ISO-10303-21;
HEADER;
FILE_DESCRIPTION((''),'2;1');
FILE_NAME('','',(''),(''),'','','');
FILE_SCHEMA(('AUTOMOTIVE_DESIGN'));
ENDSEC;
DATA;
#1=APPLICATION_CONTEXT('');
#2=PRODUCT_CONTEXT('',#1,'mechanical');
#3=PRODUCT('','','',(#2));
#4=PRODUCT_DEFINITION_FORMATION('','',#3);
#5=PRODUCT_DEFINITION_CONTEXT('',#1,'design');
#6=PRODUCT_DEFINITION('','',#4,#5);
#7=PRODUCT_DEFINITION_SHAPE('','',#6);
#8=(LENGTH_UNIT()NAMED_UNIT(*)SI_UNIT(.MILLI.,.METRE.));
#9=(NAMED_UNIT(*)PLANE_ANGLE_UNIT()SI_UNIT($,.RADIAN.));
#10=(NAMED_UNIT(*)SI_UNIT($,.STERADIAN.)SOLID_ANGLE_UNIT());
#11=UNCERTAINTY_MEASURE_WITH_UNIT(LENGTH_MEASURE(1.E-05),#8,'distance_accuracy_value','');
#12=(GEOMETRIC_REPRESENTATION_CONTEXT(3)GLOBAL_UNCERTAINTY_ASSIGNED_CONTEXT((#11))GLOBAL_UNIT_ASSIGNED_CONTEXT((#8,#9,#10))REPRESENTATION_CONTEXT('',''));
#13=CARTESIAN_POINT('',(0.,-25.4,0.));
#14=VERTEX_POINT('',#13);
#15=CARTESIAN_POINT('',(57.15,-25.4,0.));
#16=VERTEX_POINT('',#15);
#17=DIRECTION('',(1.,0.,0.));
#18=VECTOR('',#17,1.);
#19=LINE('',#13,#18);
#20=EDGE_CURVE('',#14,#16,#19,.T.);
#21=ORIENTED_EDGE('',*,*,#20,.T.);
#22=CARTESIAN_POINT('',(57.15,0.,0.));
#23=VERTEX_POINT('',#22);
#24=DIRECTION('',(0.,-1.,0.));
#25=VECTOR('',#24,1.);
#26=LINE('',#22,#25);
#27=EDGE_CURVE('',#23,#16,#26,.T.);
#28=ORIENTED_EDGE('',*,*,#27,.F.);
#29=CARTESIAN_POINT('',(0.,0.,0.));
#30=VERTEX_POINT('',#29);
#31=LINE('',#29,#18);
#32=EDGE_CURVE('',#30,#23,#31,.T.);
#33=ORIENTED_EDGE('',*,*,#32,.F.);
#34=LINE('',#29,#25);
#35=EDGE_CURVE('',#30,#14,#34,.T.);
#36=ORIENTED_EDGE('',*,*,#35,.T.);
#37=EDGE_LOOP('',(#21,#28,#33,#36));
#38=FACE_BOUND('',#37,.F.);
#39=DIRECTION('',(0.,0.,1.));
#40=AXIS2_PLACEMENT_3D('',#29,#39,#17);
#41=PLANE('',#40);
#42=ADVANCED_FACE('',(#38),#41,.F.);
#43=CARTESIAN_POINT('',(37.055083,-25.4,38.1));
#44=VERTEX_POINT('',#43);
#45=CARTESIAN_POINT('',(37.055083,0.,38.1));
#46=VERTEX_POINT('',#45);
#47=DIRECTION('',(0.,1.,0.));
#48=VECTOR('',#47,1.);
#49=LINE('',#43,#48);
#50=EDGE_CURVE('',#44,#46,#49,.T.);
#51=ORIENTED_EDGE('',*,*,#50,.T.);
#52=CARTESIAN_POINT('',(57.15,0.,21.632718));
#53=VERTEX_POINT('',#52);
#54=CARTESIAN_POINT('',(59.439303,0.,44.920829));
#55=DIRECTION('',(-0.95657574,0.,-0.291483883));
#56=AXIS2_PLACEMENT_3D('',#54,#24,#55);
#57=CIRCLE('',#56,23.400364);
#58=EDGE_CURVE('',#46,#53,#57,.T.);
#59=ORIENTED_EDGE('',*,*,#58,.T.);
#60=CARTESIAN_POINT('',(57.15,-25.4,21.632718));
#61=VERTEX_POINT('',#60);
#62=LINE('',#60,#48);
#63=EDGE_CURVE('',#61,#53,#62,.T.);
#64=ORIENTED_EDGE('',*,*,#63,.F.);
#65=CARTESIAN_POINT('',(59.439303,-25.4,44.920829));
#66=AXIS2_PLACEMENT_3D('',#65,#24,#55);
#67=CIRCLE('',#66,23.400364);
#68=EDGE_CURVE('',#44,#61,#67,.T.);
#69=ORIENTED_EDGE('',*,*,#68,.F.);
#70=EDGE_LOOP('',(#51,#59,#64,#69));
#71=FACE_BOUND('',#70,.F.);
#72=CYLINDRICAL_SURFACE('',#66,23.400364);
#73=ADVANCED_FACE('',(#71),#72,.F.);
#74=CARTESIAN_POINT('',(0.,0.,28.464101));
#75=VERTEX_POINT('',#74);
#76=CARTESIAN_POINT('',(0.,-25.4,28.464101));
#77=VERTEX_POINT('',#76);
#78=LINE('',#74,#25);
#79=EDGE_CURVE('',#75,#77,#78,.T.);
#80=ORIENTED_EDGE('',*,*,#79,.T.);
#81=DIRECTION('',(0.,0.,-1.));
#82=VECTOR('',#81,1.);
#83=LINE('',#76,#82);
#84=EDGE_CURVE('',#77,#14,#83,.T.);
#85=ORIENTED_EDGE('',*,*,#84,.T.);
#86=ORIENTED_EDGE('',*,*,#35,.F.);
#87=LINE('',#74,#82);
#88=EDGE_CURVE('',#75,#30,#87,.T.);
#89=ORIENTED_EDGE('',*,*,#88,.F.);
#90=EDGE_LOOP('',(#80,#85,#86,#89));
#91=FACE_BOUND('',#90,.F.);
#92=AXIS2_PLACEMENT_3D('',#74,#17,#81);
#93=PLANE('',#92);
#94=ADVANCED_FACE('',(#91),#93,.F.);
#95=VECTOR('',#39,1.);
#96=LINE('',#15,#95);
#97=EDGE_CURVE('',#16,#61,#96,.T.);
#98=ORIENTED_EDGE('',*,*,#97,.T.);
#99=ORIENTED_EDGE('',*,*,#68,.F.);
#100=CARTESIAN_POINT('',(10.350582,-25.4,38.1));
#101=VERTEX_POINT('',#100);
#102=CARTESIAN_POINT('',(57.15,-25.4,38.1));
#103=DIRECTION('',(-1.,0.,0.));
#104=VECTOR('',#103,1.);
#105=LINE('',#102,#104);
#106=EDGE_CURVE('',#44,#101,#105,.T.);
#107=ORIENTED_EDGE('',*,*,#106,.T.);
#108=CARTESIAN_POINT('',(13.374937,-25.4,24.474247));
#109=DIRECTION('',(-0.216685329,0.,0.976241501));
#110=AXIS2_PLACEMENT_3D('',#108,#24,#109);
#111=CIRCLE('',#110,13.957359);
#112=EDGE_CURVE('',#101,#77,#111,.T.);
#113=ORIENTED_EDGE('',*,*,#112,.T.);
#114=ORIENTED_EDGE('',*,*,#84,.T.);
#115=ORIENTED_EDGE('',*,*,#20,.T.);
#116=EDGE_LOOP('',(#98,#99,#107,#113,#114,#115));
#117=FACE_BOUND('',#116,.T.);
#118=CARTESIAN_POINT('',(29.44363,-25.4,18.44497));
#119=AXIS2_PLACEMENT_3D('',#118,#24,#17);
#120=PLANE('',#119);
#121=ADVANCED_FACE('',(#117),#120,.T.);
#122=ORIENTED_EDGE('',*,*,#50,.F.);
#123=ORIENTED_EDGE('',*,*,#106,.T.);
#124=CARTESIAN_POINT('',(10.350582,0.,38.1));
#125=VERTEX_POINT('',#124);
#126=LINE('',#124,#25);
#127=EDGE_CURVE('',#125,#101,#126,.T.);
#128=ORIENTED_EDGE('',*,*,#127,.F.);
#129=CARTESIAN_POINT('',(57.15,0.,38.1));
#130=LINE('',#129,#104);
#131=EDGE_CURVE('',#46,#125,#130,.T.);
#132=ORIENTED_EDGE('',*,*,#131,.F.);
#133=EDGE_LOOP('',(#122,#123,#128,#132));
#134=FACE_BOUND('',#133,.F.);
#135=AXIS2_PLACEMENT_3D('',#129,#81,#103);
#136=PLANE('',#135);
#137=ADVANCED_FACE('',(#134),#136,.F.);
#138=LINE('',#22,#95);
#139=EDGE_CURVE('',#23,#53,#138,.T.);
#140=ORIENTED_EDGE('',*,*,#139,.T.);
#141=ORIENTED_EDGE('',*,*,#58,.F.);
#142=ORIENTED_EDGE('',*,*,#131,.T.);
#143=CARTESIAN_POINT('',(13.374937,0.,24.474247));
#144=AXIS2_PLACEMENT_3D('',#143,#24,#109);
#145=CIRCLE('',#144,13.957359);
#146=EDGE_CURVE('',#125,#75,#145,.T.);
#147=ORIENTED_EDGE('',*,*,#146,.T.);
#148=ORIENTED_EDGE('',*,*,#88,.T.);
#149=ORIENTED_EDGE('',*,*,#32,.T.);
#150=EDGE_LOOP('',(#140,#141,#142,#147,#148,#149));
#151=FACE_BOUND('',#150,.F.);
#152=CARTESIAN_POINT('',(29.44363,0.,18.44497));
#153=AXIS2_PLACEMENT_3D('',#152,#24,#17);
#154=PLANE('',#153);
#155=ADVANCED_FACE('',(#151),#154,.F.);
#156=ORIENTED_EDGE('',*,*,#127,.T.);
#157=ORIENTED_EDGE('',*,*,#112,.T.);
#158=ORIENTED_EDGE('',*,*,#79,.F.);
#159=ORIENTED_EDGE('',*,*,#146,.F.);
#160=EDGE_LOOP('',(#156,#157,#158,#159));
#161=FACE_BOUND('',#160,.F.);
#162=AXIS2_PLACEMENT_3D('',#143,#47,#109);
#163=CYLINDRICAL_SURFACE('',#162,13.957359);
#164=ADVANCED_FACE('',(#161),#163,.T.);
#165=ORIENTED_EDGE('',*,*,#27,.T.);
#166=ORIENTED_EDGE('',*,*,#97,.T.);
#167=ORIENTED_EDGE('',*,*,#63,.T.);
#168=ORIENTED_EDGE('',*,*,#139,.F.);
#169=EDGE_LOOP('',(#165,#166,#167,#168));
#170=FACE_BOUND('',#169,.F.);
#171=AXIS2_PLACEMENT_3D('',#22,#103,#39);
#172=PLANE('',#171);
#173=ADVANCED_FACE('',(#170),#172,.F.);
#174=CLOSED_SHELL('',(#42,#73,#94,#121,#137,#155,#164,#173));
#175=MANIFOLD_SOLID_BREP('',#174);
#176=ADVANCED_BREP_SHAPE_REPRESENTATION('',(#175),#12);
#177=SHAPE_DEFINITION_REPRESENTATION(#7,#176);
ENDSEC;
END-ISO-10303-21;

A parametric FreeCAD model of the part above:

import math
import FreeCAD as App
import Part
import Sketcher
Q = App.Units.Quantity

doc = App.newDocument("Part")
body = doc.addObject("PartDesign::Body", "Body")

sketch1 = body.newObject("Sketcher::SketchObject", "Sketch")
sketch1.AttachmentSupport = (doc.getObject("XZ_Plane"), [""])
sketch1.MapMode = "FlatFace"
sketch1.addGeometry([
    Part.ArcOfCircle(Part.Circle(App.Vector(13, 24, 0), App.Vector(0, 0, 1), 14), math.radians(103), math.radians(163)),
    Part.LineSegment(App.Vector(0, 28, 0), App.Vector(0, 0, 0)),
    Part.LineSegment(App.Vector(0, 0, 0), App.Vector(57, 0, 0)),
    Part.LineSegment(App.Vector(57, 0, 0), App.Vector(57, 38, 0)),
    Part.LineSegment(App.Vector(57, 38, 0), App.Vector(10, 38, 0)),
], False)
sketch1.addConstraint([
    Sketcher.Constraint("Coincident", 0, 2, 1, 1),
    Sketcher.Constraint("Coincident", 1, 2, 2, 1),
    Sketcher.Constraint("Coincident", 2, 2, 3, 1),
    Sketcher.Constraint("Coincident", 3, 2, 4, 1),
    Sketcher.Constraint("Coincident", 4, 2, 0, 1),
    Sketcher.Constraint("Vertical", 1),
    Sketcher.Constraint("Horizontal", 2),
    Sketcher.Constraint("Vertical", 3),
    Sketcher.Constraint("Horizontal", 4),
    Sketcher.Constraint("Coincident", 1, 2, -1, 1),
    Sketcher.Constraint("DistanceY", 3, 1, 3, 2, Q("1.5 in")),
    Sketcher.Constraint("DistanceX", 2, 1, 2, 2, Q("2.25 in")),
    Sketcher.Constraint("Radius", 0, Q("13.957359 mm")),
    Sketcher.Constraint("DistanceY", 1, 2, 1, 1, Q("28.464101 mm")),
    Sketcher.Constraint("DistanceX", 4, 2, 4, 1, Q("46.799418 mm")),
])
pad1 = body.newObject("PartDesign::Pad", "Pad")
pad1.Profile = sketch1
pad1.Length = Q("1 in")

sketch2 = body.newObject("Sketcher::SketchObject", "Sketch001")
sketch2.AttachmentSupport = (doc.getObject("XZ_Plane"), [""])
sketch2.MapMode = "FlatFace"
sketch2.AttachmentOffset = App.Placement(App.Vector(0, 0, 1 * 25.4), App.Rotation())
sketch2.addGeometry([
    Part.LineSegment(App.Vector(57, 38, 0), App.Vector(37, 38, 0)),
    Part.ArcOfCircle(Part.Circle(App.Vector(59, 45, 0), App.Vector(0, 0, 1), 23), math.radians(-163), math.radians(-96)),
    Part.LineSegment(App.Vector(57, 22, 0), App.Vector(57, 38, 0)),
], False)
sketch2.addConstraint([
    Sketcher.Constraint("Coincident", 0, 2, 1, 1),
    Sketcher.Constraint("Coincident", 1, 2, 2, 1),
    Sketcher.Constraint("Coincident", 2, 2, 0, 1),
    Sketcher.Constraint("Horizontal", 0),
    Sketcher.Constraint("Vertical", 2),
    Sketcher.Constraint("DistanceY", -1, 1, 0, 2, Q("1.5 in")),
    Sketcher.Constraint("DistanceX", -1, 1, 1, 2, Q("2.25 in")),
    Sketcher.Constraint("Radius", 1, Q("23.400364 mm")),
    Sketcher.Constraint("DistanceX", 0, 2, 0, 1, Q("20.094917 mm")),
    Sketcher.Constraint("DistanceY", 2, 1, 2, 2, Q("16.467282 mm")),
])
pocket1 = body.newObject("PartDesign::Pocket", "Pocket")
pocket1.Profile = sketch2
pocket1.Length = Q("1 in")

doc.recompute()
